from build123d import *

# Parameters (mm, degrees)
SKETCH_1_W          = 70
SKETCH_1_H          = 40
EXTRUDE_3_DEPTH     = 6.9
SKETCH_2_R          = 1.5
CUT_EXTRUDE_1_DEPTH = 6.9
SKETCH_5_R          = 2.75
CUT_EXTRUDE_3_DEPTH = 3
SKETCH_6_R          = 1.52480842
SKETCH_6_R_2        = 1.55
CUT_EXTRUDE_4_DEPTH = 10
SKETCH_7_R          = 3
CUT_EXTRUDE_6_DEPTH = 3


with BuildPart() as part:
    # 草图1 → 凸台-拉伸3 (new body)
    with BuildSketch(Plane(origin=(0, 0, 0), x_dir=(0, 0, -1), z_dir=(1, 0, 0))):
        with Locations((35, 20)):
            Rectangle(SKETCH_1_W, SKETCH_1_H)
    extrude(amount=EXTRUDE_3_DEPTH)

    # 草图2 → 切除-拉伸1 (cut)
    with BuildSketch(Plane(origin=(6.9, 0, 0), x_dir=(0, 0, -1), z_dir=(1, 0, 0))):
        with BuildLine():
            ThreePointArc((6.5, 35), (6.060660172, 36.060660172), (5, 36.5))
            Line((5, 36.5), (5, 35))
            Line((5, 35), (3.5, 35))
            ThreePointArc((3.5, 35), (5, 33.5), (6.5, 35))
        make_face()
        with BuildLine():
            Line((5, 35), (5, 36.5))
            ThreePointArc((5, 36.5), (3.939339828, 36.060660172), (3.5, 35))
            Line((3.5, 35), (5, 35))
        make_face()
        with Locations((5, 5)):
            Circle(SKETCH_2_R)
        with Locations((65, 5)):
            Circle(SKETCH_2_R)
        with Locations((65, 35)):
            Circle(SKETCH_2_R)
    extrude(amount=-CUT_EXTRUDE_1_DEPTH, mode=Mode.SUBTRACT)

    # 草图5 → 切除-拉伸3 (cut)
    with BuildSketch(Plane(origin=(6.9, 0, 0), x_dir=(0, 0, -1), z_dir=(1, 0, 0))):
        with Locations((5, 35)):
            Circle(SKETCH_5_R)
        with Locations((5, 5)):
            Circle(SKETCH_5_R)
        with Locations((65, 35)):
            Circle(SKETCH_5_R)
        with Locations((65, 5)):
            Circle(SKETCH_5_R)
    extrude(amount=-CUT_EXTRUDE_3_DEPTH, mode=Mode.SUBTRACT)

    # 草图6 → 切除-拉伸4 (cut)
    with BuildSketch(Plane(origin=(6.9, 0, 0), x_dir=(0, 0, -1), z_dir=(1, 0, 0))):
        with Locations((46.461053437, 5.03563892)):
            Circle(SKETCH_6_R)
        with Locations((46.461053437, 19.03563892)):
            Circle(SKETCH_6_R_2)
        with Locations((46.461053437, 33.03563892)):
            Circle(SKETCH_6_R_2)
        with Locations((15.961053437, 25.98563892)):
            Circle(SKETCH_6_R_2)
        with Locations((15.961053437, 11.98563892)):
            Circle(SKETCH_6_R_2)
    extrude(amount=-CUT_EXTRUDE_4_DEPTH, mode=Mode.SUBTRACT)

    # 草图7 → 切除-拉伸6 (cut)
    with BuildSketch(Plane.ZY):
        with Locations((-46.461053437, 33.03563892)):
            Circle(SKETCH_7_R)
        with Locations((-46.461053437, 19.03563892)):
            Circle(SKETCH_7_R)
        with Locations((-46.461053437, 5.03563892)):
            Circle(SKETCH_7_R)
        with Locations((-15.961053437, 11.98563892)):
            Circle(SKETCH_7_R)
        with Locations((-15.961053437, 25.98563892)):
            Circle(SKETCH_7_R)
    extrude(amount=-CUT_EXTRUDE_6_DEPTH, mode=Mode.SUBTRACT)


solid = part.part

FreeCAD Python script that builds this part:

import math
import FreeCAD as App
import Part
import Sketcher

V = App.Vector
Q = App.Units.Quantity


def add_polygon(sketch, points):
    """Adds a closed chain of lines whose ends are joined by coincident constraints."""
    first, n = sketch.GeometryCount, len(points)
    for a, b in zip(points, points[1:] + points[:1]):
        sketch.addGeometry(Part.LineSegment(App.Vector(*a, 0), App.Vector(*b, 0)), False)
    for i in range(n):
        sketch.addConstraint(Sketcher.Constraint("Coincident", first + i, 2, first + (i + 1) % n, 1))

doc = App.newDocument("Part")
body = doc.addObject("PartDesign::Body", "Body")

# Sketch on YZ plane
sketch1 = body.newObject("Sketcher::SketchObject", "Sketch")
sketch1.AttachmentSupport = (doc.getObject("YZ_Plane"), [""])
sketch1.MapMode = "FlatFace"
add_polygon(sketch1, [(40, 0), (0, 0), (0, -70), (40, -70)])  # lines 0-3
sketch1.addConstraint([
    Sketcher.Constraint("Horizontal", 0),
    Sketcher.Constraint("Vertical", 1),
    Sketcher.Constraint("Horizontal", 2),
    Sketcher.Constraint("Vertical", 3),
    Sketcher.Constraint("Coincident", 0, 2, -1, 1),
    Sketcher.Constraint("DistanceX", 0, 2, 0, 1, Q("40 mm")),
    Sketcher.Constraint("DistanceY", 1, 2, 1, 1, Q("70 mm")),
])
pad1 = body.newObject("PartDesign::Pad", "Pad")
pad1.Profile = sketch1
pad1.Length = 6.9

# Sketch on YZ plane
sketch2 = body.newObject("Sketcher::SketchObject", "Sketch001")
sketch2.AttachmentSupport = (doc.getObject("YZ_Plane"), [""])
sketch2.MapMode = "FlatFace"
sketch2.AttachmentOffset = App.Placement(V(0, 0, 6.9), App.Rotation())
sketch2.addGeometry([
    Part.ArcOfCircle(Part.Circle(V(35, -5, 0), V(0, 0, 1), 1.5), math.radians(-90), math.radians(0)),  # 0
    Part.ArcOfCircle(Part.Circle(V(35, -5, 0), V(0, 0, 1), 1.5), math.radians(0), math.radians(90)),  # 1
    Part.ArcOfCircle(Part.Circle(V(35, -5, 0), V(0, 0, 1), 1.5), math.radians(90), math.radians(270)),  # 2
    Part.Circle(V(5, -5, 0), V(0, 0, 1), 1.5),  # 3
    Part.Circle(V(5, -65, 0), V(0, 0, 1), 1.5),  # 4
    Part.Circle(V(35, -65, 0), V(0, 0, 1), 1.5),  # 5
], False)
sketch2.addConstraint([
    Sketcher.Constraint("Tangent", 0, 2, 1, 1),
    Sketcher.Constraint("Tangent", 1, 2, 2, 1),
    Sketcher.Constraint("Tangent", 2, 2, 0, 1),
    Sketcher.Constraint("Equal", 2, 3),
    Sketcher.Constraint("Equal", 3, 4),
    Sketcher.Constraint("Equal", 4, 5),
    Sketcher.Constraint("Horizontal", 2, 3, 3, 3),
    Sketcher.Constraint("Horizontal", 4, 3, 5, 3),
    Sketcher.Constraint("Horizontal", 3, 3, 0, 2),
    Sketcher.Constraint("Vertical", 3, 3, 4, 3),
    Sketcher.Constraint("Vertical", 2, 3, 5, 3),
    Sketcher.Constraint("Vertical", 5, 3, 1, 2),
    Sketcher.Constraint("Vertical", 1, 2, 2, 2),
    Sketcher.Constraint("Diameter", 3, Q("3 mm")),
    Sketcher.Constraint("DistanceX", -1, 1, 0, 3, Q("35 mm")),
    Sketcher.Constraint("DistanceY", 0, 3, -1, 1, Q("5 mm")),
    Sketcher.Constraint("DistanceX", -1, 1, 3, 3, Q("5 mm")),
    Sketcher.Constraint("DistanceY", 4, 3, -1, 1, Q("65 mm")),
])
pocket1 = body.newObject("PartDesign::Pocket", "Pocket")
pocket1.Profile = sketch2
pocket1.Length = 6.9

# Sketch on YZ plane
sketch3 = body.newObject("Sketcher::SketchObject", "Sketch002")
sketch3.AttachmentSupport = (doc.getObject("YZ_Plane"), [""])
sketch3.MapMode = "FlatFace"
sketch3.AttachmentOffset = App.Placement(V(0, 0, 6.9), App.Rotation())
sketch3.addGeometry([
    Part.Circle(V(35, -5, 0), V(0, 0, 1), 2.75),
    Part.Circle(V(5, -5, 0), V(0, 0, 1), 2.75),
    Part.Circle(V(35, -65, 0), V(0, 0, 1), 2.75),
    Part.Circle(V(5, -65, 0), V(0, 0, 1), 2.75),
], False)
sketch3.addConstraint([
    Sketcher.Constraint("Equal", 0, 1),
    Sketcher.Constraint("Equal", 1, 2),
    Sketcher.Constraint("Equal", 2, 3),
    Sketcher.Constraint("Horizontal", 0, 3, 1, 3),
    Sketcher.Constraint("Horizontal", 2, 3, 3, 3),
    Sketcher.Constraint("Vertical", 0, 3, 2, 3),
    Sketcher.Constraint("Vertical", 1, 3, 3, 3),
    Sketcher.Constraint("Diameter", 0, Q("5.5 mm")),
    Sketcher.Constraint("DistanceX", -1, 1, 0, 3, Q("35 mm")),
    Sketcher.Constraint("DistanceY", 0, 3, -1, 1, Q("5 mm")),
    Sketcher.Constraint("DistanceX", -1, 1, 1, 3, Q("5 mm")),
    Sketcher.Constraint("DistanceY", 2, 3, -1, 1, Q("65 mm")),
])
pocket2 = body.newObject("PartDesign::Pocket", "Pocket001")
pocket2.Profile = sketch3
pocket2.Length = 3

# Sketch on YZ plane
sketch4 = body.newObject("Sketcher::SketchObject", "Sketch003")
sketch4.AttachmentSupport = (doc.getObject("YZ_Plane"), [""])
sketch4.MapMode = "FlatFace"
sketch4.AttachmentOffset = App.Placement(V(0, 0, 6.9), App.Rotation())
sketch4.addGeometry([
    Part.Circle(V(5.035639, -46.461053, 0), V(0, 0, 1), 1.524808),  # 0
    Part.Circle(V(19.035639, -46.461053, 0), V(0, 0, 1), 1.55),  # 1
    Part.Circle(V(33.035639, -46.461053, 0), V(0, 0, 1), 1.55),  # 2
    Part.Circle(V(25.985639, -15.961053, 0), V(0, 0, 1), 1.55),  # 3
    Part.Circle(V(11.985639, -15.961053, 0), V(0, 0, 1), 1.55),  # 4
], False)
sketch4.addConstraint([
    Sketcher.Constraint("Equal", 1, 2),
    Sketcher.Constraint("Equal", 2, 3),
    Sketcher.Constraint("Equal", 3, 4),
    Sketcher.Constraint("Horizontal", 0, 3, 1, 3),
    Sketcher.Constraint("Horizontal", 1, 3, 2, 3),
    Sketcher.Constraint("Horizontal", 3, 3, 4, 3),
    Sketcher.Constraint("Diameter", 1, Q("3.1 mm")),
    Sketcher.Constraint("DistanceX", 0, 3, 1, 3, Q("14 mm")),
    Sketcher.Constraint("DistanceX", 1, 3, 2, 3, Q("14 mm")),
    Sketcher.Constraint("DistanceX", 4, 3, 3, 3, Q("14 mm")),
    Sketcher.Constraint("DistanceY", 1, 3, 3, 3, Q("30.5 mm")),
    Sketcher.Constraint("DistanceX", 1, 3, 3, 3, Q("6.95 mm")),
    Sketcher.Constraint("Diameter", 0, Q("3.049617 mm")),
    Sketcher.Constraint("DistanceX", -1, 1, 0, 3, Q("5.035639 mm")),
    Sketcher.Constraint("DistanceY", 0, 3, -1, 1, Q("46.461053 mm")),
])
pocket3 = body.newObject("PartDesign::Pocket", "Pocket002")
pocket3.Profile = sketch4
pocket3.Length = 10

# Sketch on YZ plane
sketch5 = body.newObject("Sketcher::SketchObject", "Sketch004")
sketch5.AttachmentSupport = (doc.getObject("YZ_Plane"), [""])
sketch5.MapMode = "FlatFace"
sketch5.addGeometry([
    Part.Circle(V(33.035639, -46.461053, 0), V(0, 0, 1), 3),  # 0
    Part.Circle(V(19.035639, -46.461053, 0), V(0, 0, 1), 3),  # 1
    Part.Circle(V(5.035639, -46.461053, 0), V(0, 0, 1), 3),  # 2
    Part.Circle(V(11.985639, -15.961053, 0), V(0, 0, 1), 3),  # 3
    Part.Circle(V(25.985639, -15.961053, 0), V(0, 0, 1), 3),  # 4
], False)
sketch5.addConstraint([
    Sketcher.Constraint("Equal", 0, 1),
    Sketcher.Constraint("Equal", 1, 2),
    Sketcher.Constraint("Equal", 2, 3),
    Sketcher.Constraint("Equal", 3, 4),
    Sketcher.Constraint("Horizontal", 0, 3, 1, 3),
    Sketcher.Constraint("Horizontal", 1, 3, 2, 3),
    Sketcher.Constraint("Horizontal", 3, 3, 4, 3),
    Sketcher.Constraint("Diameter", 0, Q("6 mm")),
    Sketcher.Constraint("DistanceX", 1, 3, 0, 3, Q("14 mm")),
    Sketcher.Constraint("DistanceX", 2, 3, 1, 3, Q("14 mm")),
    Sketcher.Constraint("DistanceX", 3, 3, 4, 3, Q("14 mm")),
    Sketcher.Constraint("DistanceY", 2, 3, 3, 3, Q("30.5 mm")),
    Sketcher.Constraint("DistanceX", 2, 3, 3, 3, Q("6.95 mm")),
    Sketcher.Constraint("DistanceX", -1, 1, 0, 3, Q("33.035639 mm")),
    Sketcher.Constraint("DistanceY", 0, 3, -1, 1, Q("46.461053 mm")),
])
pocket4 = body.newObject("PartDesign::Pocket", "Pocket003")
pocket4.Profile = sketch5
pocket4.Length = 3
pocket4.Reversed = True

doc.recompute()
